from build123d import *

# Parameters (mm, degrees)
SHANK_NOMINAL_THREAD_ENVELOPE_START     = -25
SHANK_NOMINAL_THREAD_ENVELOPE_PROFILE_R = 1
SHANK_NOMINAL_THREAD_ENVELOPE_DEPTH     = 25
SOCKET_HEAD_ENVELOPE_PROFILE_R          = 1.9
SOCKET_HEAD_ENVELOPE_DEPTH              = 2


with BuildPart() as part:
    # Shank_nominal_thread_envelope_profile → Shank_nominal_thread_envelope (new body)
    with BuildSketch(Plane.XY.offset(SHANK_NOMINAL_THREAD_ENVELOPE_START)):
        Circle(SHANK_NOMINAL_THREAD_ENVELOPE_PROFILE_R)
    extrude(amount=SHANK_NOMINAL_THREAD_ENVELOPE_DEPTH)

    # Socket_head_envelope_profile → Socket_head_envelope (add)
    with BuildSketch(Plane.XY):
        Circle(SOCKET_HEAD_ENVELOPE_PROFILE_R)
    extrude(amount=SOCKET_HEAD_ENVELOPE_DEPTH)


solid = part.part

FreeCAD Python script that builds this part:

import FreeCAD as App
import Part
import Sketcher

V = App.Vector
Q = App.Units.Quantity

doc = App.newDocument("Part")
body = doc.addObject("PartDesign::Body", "Body")

sketch1 = body.newObject("Sketcher::SketchObject", "Sketch")
sketch1.AttachmentSupport = (doc.getObject("XY_Plane"), [""])
sketch1.MapMode = "FlatFace"
sketch1.AttachmentOffset = App.Placement(V(0, 0, -25), App.Rotation())
sketch1.addGeometry(Part.Circle(V(0, 0, 0), V(0, 0, 1), 1), False)
sketch1.addConstraint([
    Sketcher.Constraint("Coincident", 0, 3, -1, 1),
    Sketcher.Constraint("Diameter", 0, Q("2 mm")),
])
pad1 = body.newObject("PartDesign::Pad", "Pad")
pad1.Profile = sketch1
pad1.Length = 25

sketch2 = body.newObject("Sketcher::SketchObject", "Sketch001")
sketch2.AttachmentSupport = (doc.getObject("XY_Plane"), [""])
sketch2.MapMode = "FlatFace"
sketch2.addGeometry(Part.Circle(V(0, 0, 0), V(0, 0, 1), 1.9), False)
sketch2.addConstraint([
    Sketcher.Constraint("Coincident", 0, 3, -1, 1),
    Sketcher.Constraint("Diameter", 0, Q("3.8 mm")),
])
pad2 = body.newObject("PartDesign::Pad", "Pad001")
pad2.Profile = sketch2
pad2.Length = 2

doc.recompute()
